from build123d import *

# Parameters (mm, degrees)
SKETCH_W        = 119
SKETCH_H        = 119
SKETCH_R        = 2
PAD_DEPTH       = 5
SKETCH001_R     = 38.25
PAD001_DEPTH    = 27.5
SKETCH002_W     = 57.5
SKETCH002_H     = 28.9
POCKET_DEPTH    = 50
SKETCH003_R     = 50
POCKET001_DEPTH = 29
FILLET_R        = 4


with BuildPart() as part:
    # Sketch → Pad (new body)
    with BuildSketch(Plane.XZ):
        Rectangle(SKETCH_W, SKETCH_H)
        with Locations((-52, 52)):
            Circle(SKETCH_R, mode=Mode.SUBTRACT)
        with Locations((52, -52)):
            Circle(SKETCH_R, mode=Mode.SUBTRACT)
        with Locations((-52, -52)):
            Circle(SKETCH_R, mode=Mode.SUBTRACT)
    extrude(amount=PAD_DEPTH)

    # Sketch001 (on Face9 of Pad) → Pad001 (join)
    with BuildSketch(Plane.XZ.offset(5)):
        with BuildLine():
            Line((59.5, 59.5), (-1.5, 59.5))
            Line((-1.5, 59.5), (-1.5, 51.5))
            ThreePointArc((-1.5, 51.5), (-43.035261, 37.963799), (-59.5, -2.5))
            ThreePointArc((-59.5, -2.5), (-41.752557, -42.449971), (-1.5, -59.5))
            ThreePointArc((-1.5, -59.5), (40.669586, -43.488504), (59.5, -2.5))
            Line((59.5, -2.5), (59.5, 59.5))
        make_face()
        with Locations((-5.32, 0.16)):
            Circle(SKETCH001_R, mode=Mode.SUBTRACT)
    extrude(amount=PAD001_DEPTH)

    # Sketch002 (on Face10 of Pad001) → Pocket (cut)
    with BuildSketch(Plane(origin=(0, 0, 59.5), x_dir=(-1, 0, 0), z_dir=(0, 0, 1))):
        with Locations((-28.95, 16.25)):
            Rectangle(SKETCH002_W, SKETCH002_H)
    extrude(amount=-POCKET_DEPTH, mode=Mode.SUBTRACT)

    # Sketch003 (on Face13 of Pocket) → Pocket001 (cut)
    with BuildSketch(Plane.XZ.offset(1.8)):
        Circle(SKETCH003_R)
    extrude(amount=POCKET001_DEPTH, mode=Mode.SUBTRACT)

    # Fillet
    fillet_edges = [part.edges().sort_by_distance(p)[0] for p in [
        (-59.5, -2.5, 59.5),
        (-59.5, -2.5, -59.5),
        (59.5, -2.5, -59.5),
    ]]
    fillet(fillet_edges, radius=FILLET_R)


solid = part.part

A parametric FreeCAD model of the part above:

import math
import FreeCAD as App
import Part
import Sketcher
from FreeCAD import Vector


def edges_at(feature, points):
    """Names of the edges that pass closest to the given points."""
    edges = feature.Shape.Edges
    near = lambda p: min(range(len(edges)), key=lambda i: edges[i].distToShape(Part.Vertex(*p))[0])
    return sorted({f"Edge{near(p) + 1}" for p in points})

doc = App.newDocument("Part")
body = doc.addObject("PartDesign::Body", "Body")

sketch1 = doc.addObject("Sketcher::SketchObject", "Sketch")
body.addObject(sketch1)
sketch1.AttachmentSupport = (doc.XZ_Plane, [""])
sketch1.MapMode = "FlatFace"
sketch1.addGeometry([
    Part.LineSegment(Vector(-59.5, 59.5, 0), Vector(-59.5, -59.5, 0)),
    Part.LineSegment(Vector(-59.5, -59.5, 0), Vector(59.5, -59.5, 0)),
    Part.LineSegment(Vector(59.5, -59.5, 0), Vector(59.5, 59.5, 0)),
    Part.LineSegment(Vector(59.5, 59.5, 0), Vector(-59.5, 59.5, 0)),
    Part.Circle(Vector(-52, -52, 0), Vector(0, 0, 1), 2),
    Part.Circle(Vector(52, -52, 0), Vector(0, 0, 1), 2),
    Part.Circle(Vector(-52, 52, 0), Vector(0, 0, 1), 2),
], False)
sketch1.addConstraint([
    Sketcher.Constraint("Coincident", 0, 2, 1, 1),
    Sketcher.Constraint("Coincident", 1, 2, 2, 1),
    Sketcher.Constraint("Coincident", 2, 2, 3, 1),
    Sketcher.Constraint("Coincident", 3, 2, 0, 1),
    Sketcher.Constraint("Vertical", 0),
    Sketcher.Constraint("Horizontal", 1),
    Sketcher.Constraint("Vertical", 2),
    Sketcher.Constraint("Horizontal", 3),
    Sketcher.Constraint("Equal", 4, 5),
    Sketcher.Constraint("Equal", 5, 6),
    Sketcher.Constraint("Symmetric", 5, 3, 6, 3, -1, 1),
    Sketcher.Constraint("Symmetric", 0, 2, 2, 2, -1, 1),
    Sketcher.Constraint("Symmetric", 4, 3, 5, 3, -2),
    Sketcher.Constraint("Equal", 3, 0),
    Sketcher.Constraint("Diameter", 4, 4.0),
    Sketcher.Constraint("DistanceX", 1, 1, 1, 2, 119.0),
    Sketcher.Constraint("DistanceX", 4, 3, -1, 1, 52.0),
    Sketcher.Constraint("DistanceY", 4, 3, -1, 1, 52.0),
])
pad1 = doc.addObject("PartDesign::Pad", "Pad")
body.addObject(pad1)
pad1.Profile = sketch1
pad1.Length = 5

sketch2 = doc.addObject("Sketcher::SketchObject", "Sketch001")
body.addObject(sketch2)
sketch2.AttachmentSupport = (doc.XZ_Plane, [""])
sketch2.MapMode = "FlatFace"
sketch2.AttachmentOffset = App.Placement(Vector(0, 0, 5), App.Rotation())
sketch2.addGeometry([
    Part.LineSegment(Vector(60, 60, 0), Vector(-2, 60, 0)),
    Part.LineSegment(Vector(-2, 60, 0), Vector(-2, 52, 0)),
    Part.ArcOfCircle(Part.Circle(Vector(-8, 0, 0), Vector(0, 0, 1), 52), math.radians(83), math.radians(183)),
    Part.ArcOfCircle(Part.Circle(Vector(0, 0, 0), Vector(0, 0, 1), 60), math.radians(-178), math.radians(-91)),
    Part.ArcOfCircle(Part.Circle(Vector(0, 0, 0), Vector(0, 0, 1), 60), math.radians(-91), math.radians(-2)),
    Part.LineSegment(Vector(60, -2, 0), Vector(60, 60, 0)),
    Part.Circle(Vector(-5, 0, 0), Vector(0, 0, 1), 38),
], False)
sketch2.addConstraint([
    Sketcher.Constraint("Coincident", 0, 2, 1, 1),
    Sketcher.Constraint("Coincident", 1, 2, 2, 1),
    Sketcher.Constraint("Coincident", 2, 2, 3, 1),
    Sketcher.Constraint("Coincident", 3, 2, 4, 1),
    Sketcher.Constraint("Coincident", 4, 2, 5, 1),
    Sketcher.Constraint("Coincident", 5, 2, 0, 1),
    Sketcher.Constraint("Horizontal", 0),
    Sketcher.Constraint("Vertical", 1),
    Sketcher.Constraint("Vertical", 5),
    Sketcher.Constraint("Symmetric", 2, 2, 4, 2, -2),
    Sketcher.Constraint("Symmetric", 0, 2, 3, 2, -1),
    Sketcher.Constraint("PointOnObject", 2, 3, -1),
    Sketcher.Constraint("PointOnObject", 3, 3, -1),
    Sketcher.Constraint("PointOnObject", 4, 3, -1),
    Sketcher.Constraint("Diameter", 6, 76.5),
    Sketcher.Constraint("DistanceX", 0, 2, 0, 1, 61.0),
    Sketcher.Constraint("DistanceY", 1, 2, 1, 1, 8.0),
    Sketcher.Constraint("DistanceY", 5, 1, 5, 2, 62.0),
    Sketcher.Constraint("DistanceX", 2, 2, 1, 2, 58.0),
    Sketcher.Constraint("DistanceY", 3, 2, 2, 2, 57.0),
    Sketcher.Constraint("DistanceX", 6, 3, -1, 1, 5.32),
    Sketcher.Constraint("DistanceY", -1, 1, 6, 3, 0.16),
])
pad2 = doc.addObject("PartDesign::Pad", "Pad001")
body.addObject(pad2)
pad2.Profile = sketch2
pad2.Length = 27.5

sketch3 = doc.addObject("Sketcher::SketchObject", "Sketch002")
body.addObject(sketch3)
sketch3.AttachmentSupport = (doc.XY_Plane, [""])
sketch3.MapMode = "FlatFace"
sketch3.AttachmentOffset = App.Placement(Vector(0, 0, 59.5), App.Rotation())
sketch3.addGeometry([
    Part.LineSegment(Vector(58, -31, 0), Vector(58, -2, 0)),
    Part.LineSegment(Vector(58, -2, 0), Vector(0, -2, 0)),
    Part.LineSegment(Vector(0, -2, 0), Vector(0, -31, 0)),
    Part.LineSegment(Vector(0, -31, 0), Vector(58, -31, 0)),
], False)
sketch3.addConstraint([
    Sketcher.Constraint("Coincident", 0, 2, 1, 1),
    Sketcher.Constraint("Coincident", 1, 2, 2, 1),
    Sketcher.Constraint("Coincident", 2, 2, 3, 1),
    Sketcher.Constraint("Coincident", 3, 2, 0, 1),
    Sketcher.Constraint("Vertical", 0),
    Sketcher.Constraint("Horizontal", 1),
    Sketcher.Constraint("Vertical", 2),
    Sketcher.Constraint("Horizontal", 3),
    Sketcher.Constraint("DistanceX", 1, 2, 1, 1, 57.5),
    Sketcher.Constraint("DistanceY", 0, 1, 0, 2, 28.9),
    Sketcher.Constraint("DistanceX", -1, 1, 0, 2, 57.7),
    Sketcher.Constraint("DistanceY", 0, 2, -1, 1, 1.8),
])
pocket1 = doc.addObject("PartDesign::Pocket", "Pocket")
body.addObject(pocket1)
pocket1.Profile = sketch3
pocket1.Length = 50

sketch4 = doc.addObject("Sketcher::SketchObject", "Sketch003")
body.addObject(sketch4)
sketch4.AttachmentSupport = (doc.XZ_Plane, [""])
sketch4.MapMode = "FlatFace"
sketch4.AttachmentOffset = App.Placement(Vector(0, 0, 1.8), App.Rotation())
sketch4.addGeometry(Part.Circle(Vector(0, 0, 0), Vector(0, 0, 1), 50), False)
sketch4.addConstraint([
    Sketcher.Constraint("Coincident", 0, 3, -1, 1),
    Sketcher.Constraint("Diameter", 0, 100.0),
])
pocket2 = doc.addObject("PartDesign::Pocket", "Pocket001")
body.addObject(pocket2)
pocket2.Profile = sketch4
pocket2.Length = 29
pocket2.Reversed = True
doc.recompute()

fillet = doc.addObject("PartDesign::Fillet", "Fillet")
body.addObject(fillet)
fillet.Base = (pocket2, edges_at(pocket2, [(-59.5, -2.5, 59.5), (-59.5, -2.5, -59.5), (59.5, -2.5, -59.5)]))
fillet.Radius = 4

doc.recompute()
